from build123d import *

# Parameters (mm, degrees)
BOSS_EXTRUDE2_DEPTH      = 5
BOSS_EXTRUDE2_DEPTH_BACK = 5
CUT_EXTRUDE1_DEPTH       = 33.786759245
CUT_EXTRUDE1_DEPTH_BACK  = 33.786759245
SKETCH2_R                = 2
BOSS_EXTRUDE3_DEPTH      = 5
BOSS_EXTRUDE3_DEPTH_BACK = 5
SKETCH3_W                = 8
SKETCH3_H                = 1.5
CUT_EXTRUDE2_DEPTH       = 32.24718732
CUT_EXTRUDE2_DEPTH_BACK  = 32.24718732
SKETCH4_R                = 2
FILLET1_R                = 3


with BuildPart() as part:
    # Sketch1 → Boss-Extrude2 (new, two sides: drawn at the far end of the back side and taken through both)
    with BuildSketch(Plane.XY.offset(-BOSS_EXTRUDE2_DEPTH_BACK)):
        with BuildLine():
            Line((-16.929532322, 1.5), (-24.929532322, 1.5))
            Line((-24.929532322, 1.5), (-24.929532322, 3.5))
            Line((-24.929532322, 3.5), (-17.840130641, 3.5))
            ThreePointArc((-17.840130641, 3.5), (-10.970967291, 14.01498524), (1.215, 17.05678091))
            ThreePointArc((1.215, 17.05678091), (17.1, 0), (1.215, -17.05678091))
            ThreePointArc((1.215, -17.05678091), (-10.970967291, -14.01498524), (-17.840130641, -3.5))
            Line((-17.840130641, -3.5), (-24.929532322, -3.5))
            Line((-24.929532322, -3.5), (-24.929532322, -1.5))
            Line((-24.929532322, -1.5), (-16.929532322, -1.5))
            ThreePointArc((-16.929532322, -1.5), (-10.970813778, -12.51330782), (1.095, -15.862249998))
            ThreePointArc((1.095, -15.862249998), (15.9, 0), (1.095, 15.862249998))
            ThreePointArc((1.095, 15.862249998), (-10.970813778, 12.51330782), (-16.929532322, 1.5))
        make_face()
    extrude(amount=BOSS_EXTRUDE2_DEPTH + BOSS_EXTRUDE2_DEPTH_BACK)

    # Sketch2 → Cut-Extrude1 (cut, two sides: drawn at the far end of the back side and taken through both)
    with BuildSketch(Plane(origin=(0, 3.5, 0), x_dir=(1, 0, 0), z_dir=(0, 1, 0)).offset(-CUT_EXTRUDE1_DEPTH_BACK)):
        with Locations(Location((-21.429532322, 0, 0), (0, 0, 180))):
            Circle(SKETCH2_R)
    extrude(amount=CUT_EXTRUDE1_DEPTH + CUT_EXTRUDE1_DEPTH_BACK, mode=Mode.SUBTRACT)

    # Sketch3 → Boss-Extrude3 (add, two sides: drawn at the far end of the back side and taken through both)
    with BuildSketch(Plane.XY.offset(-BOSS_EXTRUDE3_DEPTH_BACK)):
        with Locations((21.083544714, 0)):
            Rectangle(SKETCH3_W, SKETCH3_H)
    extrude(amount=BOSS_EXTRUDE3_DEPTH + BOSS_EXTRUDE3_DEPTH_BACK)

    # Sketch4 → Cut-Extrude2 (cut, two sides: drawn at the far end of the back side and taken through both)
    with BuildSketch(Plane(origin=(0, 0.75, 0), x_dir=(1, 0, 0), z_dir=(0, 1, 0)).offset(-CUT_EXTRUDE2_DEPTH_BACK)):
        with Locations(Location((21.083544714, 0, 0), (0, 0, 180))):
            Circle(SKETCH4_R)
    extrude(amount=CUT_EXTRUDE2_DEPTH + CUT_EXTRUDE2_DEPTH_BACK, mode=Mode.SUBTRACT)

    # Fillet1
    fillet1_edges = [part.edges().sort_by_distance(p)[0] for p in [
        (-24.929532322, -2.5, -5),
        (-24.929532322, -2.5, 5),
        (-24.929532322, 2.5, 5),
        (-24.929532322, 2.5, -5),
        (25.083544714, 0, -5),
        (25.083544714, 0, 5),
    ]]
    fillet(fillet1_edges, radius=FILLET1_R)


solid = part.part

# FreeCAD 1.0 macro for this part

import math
import FreeCAD as App
import Part
import Sketcher
Q = App.Units.Quantity


def edges_at(feature, points):
    """Names of the edges that pass closest to the given points."""
    edges = feature.Shape.Edges
    near = lambda p: min(range(len(edges)), key=lambda i: edges[i].distToShape(Part.Vertex(*p))[0])
    return sorted({f"Edge{near(p) + 1}" for p in points})

doc = App.newDocument("Part")
params = doc.addObject("Spreadsheet::Sheet", "Params")
for row, (alias, value) in enumerate([
    ("sketch1_radius", "16 mm"),
    ("sketch1_radius2", "15.9 mm"),
    ("sketch1_radius3", "17.2 mm"),
    ("sketch1_radius4", "17.1 mm"),
    ("sketch1_width", "8 mm"),
    ("pad1_length", "5 mm"),
    ("pad1_length2", "5 mm"),
    ("sketch2_diameter", "4 mm"),
    ("sketch3_width", "8 mm"),
    ("sketch3_height", "1.5 mm"),
    ("pad2_length", "5 mm"),
    ("pad2_length2", "5 mm"),
    ("sketch4_diameter", "4 mm"),
    ("fillet_radius", "3 mm"),
], start=1):
    params.set(f"A{row}", alias)
    params.set(f"B{row}", "=" + value)
    params.setAlias(f"B{row}", alias)

body = doc.addObject("PartDesign::Body", "Body")

sketch1 = body.newObject("Sketcher::SketchObject", "Sketch")
sketch1.AttachmentSupport = (doc.getObject("XY_Plane"), [""])
sketch1.MapMode = "FlatFace"
sketch1.addGeometry([
    Part.LineSegment(App.Vector(-24.9, 1.5, 0), App.Vector(-16.9, 1.5, 0)),
    Part.ArcOfCircle(Part.Circle(App.Vector(-1, 0, 0), App.Vector(0, 0, 1), 16), math.radians(82), math.radians(175)),
    Part.ArcOfCircle(Part.Circle(App.Vector(0, 0, 0), App.Vector(0, 0, 1), 15.9), math.radians(-86), math.radians(86)),
    Part.ArcOfCircle(Part.Circle(App.Vector(-1, 0, 0), App.Vector(0, 0, 1), 16), math.radians(-175), math.radians(-82)),
    Part.LineSegment(App.Vector(-16.9, -1.5, 0), App.Vector(-24.9, -1.5, 0)),
    Part.LineSegment(App.Vector(-24.9, -1.5, 0), App.Vector(-24.9, -3.5, 0)),
    Part.LineSegment(App.Vector(-24.9, -3.5, 0), App.Vector(-17.8, -3.5, 0)),
    Part.ArcOfCircle(Part.Circle(App.Vector(-1, 0, 0), App.Vector(0, 0, 1), 17.2), math.radians(-168), math.radians(-83)),
    Part.ArcOfCircle(Part.Circle(App.Vector(0, 0, 0), App.Vector(0, 0, 1), 17.1), math.radians(-86), math.radians(86)),
    Part.ArcOfCircle(Part.Circle(App.Vector(-1, 0, 0), App.Vector(0, 0, 1), 17.2), math.radians(83), math.radians(168)),
    Part.LineSegment(App.Vector(-17.8, 3.5, 0), App.Vector(-24.9, 3.5, 0)),
    Part.LineSegment(App.Vector(-24.9, 3.5, 0), App.Vector(-24.9, 1.5, 0)),
], False)
sketch1.addConstraint([
    Sketcher.Constraint("Coincident", 0, 2, 1, 2),
    Sketcher.Constraint("Coincident", 1, 1, 2, 2),
    Sketcher.Constraint("Coincident", 2, 1, 3, 2),
    Sketcher.Constraint("Coincident", 3, 1, 4, 1),
    Sketcher.Constraint("Coincident", 4, 2, 5, 1),
    Sketcher.Constraint("Coincident", 5, 2, 6, 1),
    Sketcher.Constraint("Coincident", 6, 2, 7, 1),
    Sketcher.Constraint("Coincident", 7, 2, 8, 1),
    Sketcher.Constraint("Coincident", 8, 2, 9, 1),
    Sketcher.Constraint("Coincident", 9, 2, 10, 1),
    Sketcher.Constraint("Coincident", 10, 2, 11, 1),
    Sketcher.Constraint("Coincident", 11, 2, 0, 1),
    Sketcher.Constraint("Horizontal", 0),
    Sketcher.Constraint("Horizontal", 4),
    Sketcher.Constraint("Vertical", 5),
    Sketcher.Constraint("Horizontal", 6),
    Sketcher.Constraint("Horizontal", 10),
    Sketcher.Constraint("Vertical", 11),
    Sketcher.Constraint("Coincident", 2, 3, -1, 1),
    Sketcher.Constraint("Coincident", 8, 3, -1, 1),
    Sketcher.Constraint("Coincident", 3, 3, 1, 3),
    Sketcher.Constraint("Coincident", 7, 3, 1, 3),
    Sketcher.Constraint("Coincident", 9, 3, 1, 3),
    Sketcher.Constraint("Equal", 1, 3),
    Sketcher.Constraint("Equal", 7, 9),
    Sketcher.Constraint("Symmetric", 0, 2, 3, 1, -1),
    Sketcher.Constraint("Symmetric", 5, 2, 10, 2, -1),
    Sketcher.Constraint("Radius", 1, Q("16 mm")),
    Sketcher.Constraint("Radius", 2, Q("15.9 mm")),
    Sketcher.Constraint("Radius", 7, Q("17.2 mm")),
    Sketcher.Constraint("Radius", 8, Q("17.1 mm")),
    Sketcher.Constraint("DistanceX", 0, 1, 0, 2, Q("8 mm")),
    Sketcher.Constraint("DistanceY", 5, 2, 5, 1, Q("2 mm")),
    Sketcher.Constraint("DistanceX", 1, 3, -1, 1, Q("1 mm")),
    Sketcher.Constraint("DistanceY", 3, 1, 0, 2, Q("3 mm")),
])
sketch1.setExpression("Constraints[27]", "Params.sketch1_radius")
sketch1.setExpression("Constraints[28]", "Params.sketch1_radius2")
sketch1.setExpression("Constraints[29]", "Params.sketch1_radius3")
sketch1.setExpression("Constraints[30]", "Params.sketch1_radius4")
sketch1.setExpression("Constraints[31]", "Params.sketch1_width")
pad1 = body.newObject("PartDesign::Pad", "Pad")
pad1.Profile = sketch1
pad1.Type = "TwoLengths"
pad1.setExpression("Length", "Params.pad1_length")
pad1.setExpression("Length2", "Params.pad1_length2")

sketch2 = body.newObject("Sketcher::SketchObject", "Sketch001")
sketch2.AttachmentSupport = (doc.getObject("XZ_Plane"), [""])
sketch2.MapMode = "FlatFace"
sketch2.AttachmentOffset = App.Placement(App.Vector(0, 0, -3.5), App.Rotation())
sketch2.addGeometry(Part.Circle(App.Vector(-21.4, 0, 0), App.Vector(0, 0, 1), 2), False)
sketch2.addConstraint([
    Sketcher.Constraint("PointOnObject", 0, 3, -1),
    Sketcher.Constraint("Diameter", 0, Q("4 mm")),
    Sketcher.Constraint("DistanceX", 0, 3, -1, 1, Q("21.429532 mm")),
])
sketch2.setExpression("Constraints[1]", "Params.sketch2_diameter")
pocket1 = body.newObject("PartDesign::Pocket", "Pocket")
pocket1.Profile = sketch2
pocket1.Type = "ThroughAll"
pocket1.Midplane = True

sketch3 = body.newObject("Sketcher::SketchObject", "Sketch002")
sketch3.AttachmentSupport = (doc.getObject("XY_Plane"), [""])
sketch3.MapMode = "FlatFace"
sketch3.addGeometry([
    Part.LineSegment(App.Vector(17.1, 0.8, 0), App.Vector(17.1, -0.8, 0)),
    Part.LineSegment(App.Vector(17.1, -0.8, 0), App.Vector(25.1, -0.8, 0)),
    Part.LineSegment(App.Vector(25.1, -0.8, 0), App.Vector(25.1, 0.8, 0)),
    Part.LineSegment(App.Vector(25.1, 0.8, 0), App.Vector(17.1, 0.8, 0)),
], False)
sketch3.addConstraint([
    Sketcher.Constraint("Coincident", 0, 2, 1, 1),
    Sketcher.Constraint("Coincident", 1, 2, 2, 1),
    Sketcher.Constraint("Coincident", 2, 2, 3, 1),
    Sketcher.Constraint("Coincident", 3, 2, 0, 1),
    Sketcher.Constraint("Vertical", 0),
    Sketcher.Constraint("Horizontal", 1),
    Sketcher.Constraint("Vertical", 2),
    Sketcher.Constraint("Horizontal", 3),
    Sketcher.Constraint("DistanceX", 1, 1, 1, 2, Q("8 mm")),
    Sketcher.Constraint("DistanceY", 0, 2, 0, 1, Q("1.5 mm")),
    Sketcher.Constraint("DistanceY", 0, 2, -1, 1, Q("0.75 mm")),
    Sketcher.Constraint("DistanceX", -1, 1, 0, 2, Q("17.083545 mm")),
])
sketch3.setExpression("Constraints[8]", "Params.sketch3_width")
sketch3.setExpression("Constraints[9]", "Params.sketch3_height")
pad2 = body.newObject("PartDesign::Pad", "Pad001")
pad2.Profile = sketch3
pad2.Type = "TwoLengths"
pad2.setExpression("Length", "Params.pad2_length")
pad2.setExpression("Length2", "Params.pad2_length2")

sketch4 = body.newObject("Sketcher::SketchObject", "Sketch003")
sketch4.AttachmentSupport = (doc.getObject("XZ_Plane"), [""])
sketch4.MapMode = "FlatFace"
sketch4.AttachmentOffset = App.Placement(App.Vector(0, 0, -0.75), App.Rotation())
sketch4.addGeometry(Part.Circle(App.Vector(21.1, 0, 0), App.Vector(0, 0, 1), 2), False)
sketch4.addConstraint([
    Sketcher.Constraint("PointOnObject", 0, 3, -1),
    Sketcher.Constraint("Diameter", 0, Q("4 mm")),
    Sketcher.Constraint("DistanceX", -1, 1, 0, 3, Q("21.083545 mm")),
])
sketch4.setExpression("Constraints[1]", "Params.sketch4_diameter")
pocket2 = body.newObject("PartDesign::Pocket", "Pocket001")
pocket2.Profile = sketch4
pocket2.Type = "ThroughAll"
pocket2.Midplane = True
doc.recompute()

fillet = body.newObject("PartDesign::Fillet", "Fillet")
fillet.Base = (pocket2, edges_at(pocket2, [
    (-24.93, -2.5, -5),
    (-24.93, -2.5, 5),
    (-24.93, 2.5, 5),
    (-24.93, 2.5, -5),
    (25.084, 0, -5),
    (25.084, 0, 5),
]))
fillet.setExpression("Radius", "Params.fillet_radius")

doc.recompute()
